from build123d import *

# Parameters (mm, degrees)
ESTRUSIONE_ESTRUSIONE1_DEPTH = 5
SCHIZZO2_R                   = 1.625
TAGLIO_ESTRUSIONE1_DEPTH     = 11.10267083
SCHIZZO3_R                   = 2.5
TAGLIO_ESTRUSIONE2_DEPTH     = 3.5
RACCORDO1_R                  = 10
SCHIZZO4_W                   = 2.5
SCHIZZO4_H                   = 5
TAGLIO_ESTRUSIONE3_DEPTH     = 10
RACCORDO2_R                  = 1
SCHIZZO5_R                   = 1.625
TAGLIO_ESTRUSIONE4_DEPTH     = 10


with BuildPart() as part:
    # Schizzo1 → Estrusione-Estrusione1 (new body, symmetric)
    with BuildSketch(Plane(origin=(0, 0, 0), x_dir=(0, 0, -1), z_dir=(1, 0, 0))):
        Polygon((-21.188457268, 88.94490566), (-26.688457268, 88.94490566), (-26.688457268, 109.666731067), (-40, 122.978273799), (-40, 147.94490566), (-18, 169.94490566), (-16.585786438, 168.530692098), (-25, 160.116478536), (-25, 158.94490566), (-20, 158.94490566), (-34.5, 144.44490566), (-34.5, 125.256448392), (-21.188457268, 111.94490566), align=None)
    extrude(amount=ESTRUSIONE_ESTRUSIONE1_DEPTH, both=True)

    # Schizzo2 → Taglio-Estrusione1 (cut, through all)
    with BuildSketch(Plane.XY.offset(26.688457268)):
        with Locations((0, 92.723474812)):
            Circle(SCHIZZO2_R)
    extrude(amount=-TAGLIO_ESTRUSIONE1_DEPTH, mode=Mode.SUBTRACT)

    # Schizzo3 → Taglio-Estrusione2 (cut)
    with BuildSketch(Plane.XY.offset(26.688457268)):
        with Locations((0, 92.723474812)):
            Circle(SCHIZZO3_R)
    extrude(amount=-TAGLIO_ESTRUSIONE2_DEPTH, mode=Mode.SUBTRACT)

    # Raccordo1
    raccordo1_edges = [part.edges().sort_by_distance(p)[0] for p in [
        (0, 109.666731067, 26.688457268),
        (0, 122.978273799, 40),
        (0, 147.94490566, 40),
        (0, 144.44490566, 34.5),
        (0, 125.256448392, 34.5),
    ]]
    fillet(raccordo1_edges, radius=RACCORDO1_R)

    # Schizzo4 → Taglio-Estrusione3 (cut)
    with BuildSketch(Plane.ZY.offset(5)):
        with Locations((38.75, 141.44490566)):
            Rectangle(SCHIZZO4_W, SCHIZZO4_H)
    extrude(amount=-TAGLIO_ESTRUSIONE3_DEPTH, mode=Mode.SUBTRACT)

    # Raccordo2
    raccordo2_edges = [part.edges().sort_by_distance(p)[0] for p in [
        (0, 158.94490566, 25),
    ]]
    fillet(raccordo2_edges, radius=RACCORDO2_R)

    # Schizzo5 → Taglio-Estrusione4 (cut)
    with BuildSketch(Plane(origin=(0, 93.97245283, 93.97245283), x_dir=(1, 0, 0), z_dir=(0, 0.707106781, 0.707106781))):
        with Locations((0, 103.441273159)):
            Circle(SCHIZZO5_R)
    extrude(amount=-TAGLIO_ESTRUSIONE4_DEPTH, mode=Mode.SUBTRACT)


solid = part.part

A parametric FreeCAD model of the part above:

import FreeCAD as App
import Part
import Sketcher
from FreeCAD import Vector
Q = App.Units.Quantity


def edges_at(feature, points):
    """Names of the edges that pass closest to the given points."""
    edges = feature.Shape.Edges
    near = lambda p: min(range(len(edges)), key=lambda i: edges[i].distToShape(Part.Vertex(*p))[0])
    return sorted({f"Edge{near(p) + 1}" for p in points})


def add_polygon(sketch, points):
    """Adds a closed chain of lines whose ends are joined by coincident constraints."""
    first, n = sketch.GeometryCount, len(points)
    for a, b in zip(points, points[1:] + points[:1]):
        sketch.addGeometry(Part.LineSegment(App.Vector(*a, 0), App.Vector(*b, 0)), False)
    for i in range(n):
        sketch.addConstraint(Sketcher.Constraint("Coincident", first + i, 2, first + (i + 1) % n, 1))

doc = App.newDocument("Part")
body = doc.addObject("PartDesign::Body", "Body")

sketch1 = body.newObject("Sketcher::SketchObject", "Sketch")
sketch1.AttachmentSupport = (doc.getObject("YZ_Plane"), [""])
sketch1.MapMode = "FlatFace"
add_polygon(sketch1, [(88.9, 26.7), (88.9, 21.2), (111.9, 21.2), (125.3, 34.5), (144.4, 34.5), (158.9, 20), (158.9, 25), (160.1, 25), (168.5, 16.6), (169.9, 18), (147.9, 40), (123, 40), (109.7, 26.7)])
sketch1.addConstraint([
    Sketcher.Constraint("Vertical", 0),
    Sketcher.Constraint("Horizontal", 1),
    Sketcher.Constraint("Horizontal", 3),
    Sketcher.Constraint("Vertical", 5),
    Sketcher.Constraint("Horizontal", 6),
    Sketcher.Constraint("Horizontal", 10),
    Sketcher.Constraint("Horizontal", 12),
    Sketcher.Constraint("Perpendicular", 2, 4),
    Sketcher.Constraint("Parallel", 4, 7),
    Sketcher.Constraint("Perpendicular", 7, 8),
    Sketcher.Constraint("Perpendicular", 8, 9),
    Sketcher.Constraint("Perpendicular", 9, 11),
    Sketcher.Constraint("Equal", 2, 11),
    Sketcher.Constraint("DistanceX", 1, 1, 1, 2, 23.0),
    Sketcher.Constraint("DistanceY", 5, 1, 5, 2, 5.0),
    Sketcher.Constraint("Angle", 2, Q("45 deg")),
    Sketcher.Constraint("Distance", 8, 2.0),
    Sketcher.Constraint("DistanceY", 0, 2, 0, 1, 5.5),
    Sketcher.Constraint("DistanceY", -1, 1, 4, 2, 20.0),
    Sketcher.Constraint("DistanceY", -1, 1, 8, 2, 18.0),
    Sketcher.Constraint("DistanceY", -1, 1, 9, 2, 40.0),
    Sketcher.Constraint("DistanceX", 1, 2, 4, 2, 47.0),
    Sketcher.Constraint("DistanceX", 4, 2, 8, 2, 11.0),
    Sketcher.Constraint("DistanceX", 10, 2, 10, 1, 24.966632),
    Sketcher.Constraint("DistanceX", 3, 1, 3, 2, 19.188457),
    Sketcher.Constraint("DistanceX", -1, 1, 2, 2, 125.256448),
])
pad1 = body.newObject("PartDesign::Pad", "Pad")
pad1.Profile = sketch1
pad1.Length = 10
pad1.Midplane = True

sketch2 = body.newObject("Sketcher::SketchObject", "Sketch001")
sketch2.AttachmentSupport = (doc.getObject("XY_Plane"), [""])
sketch2.MapMode = "FlatFace"
sketch2.AttachmentOffset = App.Placement(Vector(0, 0, 26.688457), App.Rotation())
sketch2.addGeometry(Part.Circle(Vector(0, 92.7, 0), Vector(0, 0, 1), 1.6), False)
sketch2.addConstraint([
    Sketcher.Constraint("PointOnObject", 0, 3, -2),
    Sketcher.Constraint("Diameter", 0, 3.25),
    Sketcher.Constraint("DistanceY", -1, 1, 0, 3, 92.723475),
])
pocket1 = body.newObject("PartDesign::Pocket", "Pocket")
pocket1.Profile = sketch2
pocket1.Type = "ThroughAll"

sketch3 = body.newObject("Sketcher::SketchObject", "Sketch002")
sketch3.AttachmentSupport = (doc.getObject("XY_Plane"), [""])
sketch3.MapMode = "FlatFace"
sketch3.AttachmentOffset = App.Placement(Vector(0, 0, 26.688457), App.Rotation())
sketch3.addGeometry(Part.Circle(Vector(0, 92.7, 0), Vector(0, 0, 1), 2.5), False)
sketch3.addConstraint([
    Sketcher.Constraint("PointOnObject", 0, 3, -2),
    Sketcher.Constraint("Diameter", 0, 5.0),
    Sketcher.Constraint("DistanceY", -1, 1, 0, 3, 92.723475),
])
pocket2 = body.newObject("PartDesign::Pocket", "Pocket001")
pocket2.Profile = sketch3
pocket2.Length = 3.5
doc.recompute()

fillet = body.newObject("PartDesign::Fillet", "Fillet")
fillet.Base = (pocket2, edges_at(pocket2, [
    (0, 109.667, 26.688),
    (0, 122.978, 40),
    (0, 147.945, 40),
    (0, 144.445, 34.5),
    (0, 125.256, 34.5),
]))
fillet.Radius = 10

sketch4 = body.newObject("Sketcher::SketchObject", "Sketch003")
sketch4.AttachmentSupport = (doc.getObject("YZ_Plane"), [""])
sketch4.MapMode = "FlatFace"
sketch4.AttachmentOffset = App.Placement(Vector(0, 0, -5), App.Rotation())
add_polygon(sketch4, [(143.9, 37.5), (138.9, 37.5), (138.9, 40), (143.9, 40)])
sketch4.addConstraint([
    Sketcher.Constraint("Horizontal", 0),
    Sketcher.Constraint("Vertical", 1),
    Sketcher.Constraint("Horizontal", 2),
    Sketcher.Constraint("Vertical", 3),
    Sketcher.Constraint("DistanceX", 0, 2, 0, 1, 5.0),
    Sketcher.Constraint("DistanceY", 1, 1, 1, 2, 2.5),
    Sketcher.Constraint("DistanceY", -1, 1, 1, 2, 40.0),
    Sketcher.Constraint("DistanceX", -1, 1, 0, 2, 138.944906),
])
pocket3 = body.newObject("PartDesign::Pocket", "Pocket002")
pocket3.Profile = sketch4
pocket3.Length = 10
pocket3.Reversed = True
doc.recompute()

fillet2 = body.newObject("PartDesign::Fillet", "Fillet001")
fillet2.Base = (pocket3, edges_at(pocket3, [(0, 158.945, 25)]))
fillet2.Radius = 1

sketch5 = body.newObject("Sketcher::SketchObject", "Sketch004")
sketch5.Placement = App.Placement(Vector(0, 93.972453, 93.972453), App.Rotation(Vector(1, 0, 0), Vector(0, 0.707106781, -0.707106781), Vector(0, 0.707106781, 0.707106781), "ZXY"))
sketch5.addGeometry(Part.Circle(Vector(0, 103.4, 0), Vector(0, 0, 1), 1.6), False)
sketch5.addConstraint([
    Sketcher.Constraint("PointOnObject", 0, 3, -2),
    Sketcher.Constraint("Diameter", 0, 3.25),
    Sketcher.Constraint("DistanceY", -1, 1, 0, 3, 103.441273),
])
pocket4 = body.newObject("PartDesign::Pocket", "Pocket003")
pocket4.Profile = sketch5
pocket4.Length = 10

doc.recompute()
